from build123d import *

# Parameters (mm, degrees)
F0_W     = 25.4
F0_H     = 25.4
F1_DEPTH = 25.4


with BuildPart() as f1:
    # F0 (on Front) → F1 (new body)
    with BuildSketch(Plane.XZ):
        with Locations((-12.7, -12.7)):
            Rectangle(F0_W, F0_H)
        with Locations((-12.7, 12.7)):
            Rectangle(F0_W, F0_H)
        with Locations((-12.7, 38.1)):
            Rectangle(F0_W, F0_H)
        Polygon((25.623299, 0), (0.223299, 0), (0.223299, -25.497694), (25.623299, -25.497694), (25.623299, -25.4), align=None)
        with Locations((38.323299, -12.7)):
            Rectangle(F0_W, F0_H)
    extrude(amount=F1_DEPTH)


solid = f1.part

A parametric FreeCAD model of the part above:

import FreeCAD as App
import Part
import Sketcher
Q = App.Units.Quantity

doc = App.newDocument("Part")
body = doc.addObject("PartDesign::Body", "Body")
body.AllowCompound = True

# Sketch on XZ plane
sketch1 = body.newObject("Sketcher::SketchObject", "Sketch")
sketch1.AttachmentSupport = (doc.getObject("XZ_Plane"), [""])
sketch1.MapMode = "FlatFace"
sketch1.addGeometry([
    Part.LineSegment(App.Vector(-25.4, -25.4, 0), App.Vector(0, -25.4, 0)),  # 0
    Part.LineSegment(App.Vector(0, -25.4, 0), App.Vector(0, 50.8, 0)),  # 1
    Part.LineSegment(App.Vector(0, 50.8, 0), App.Vector(-25.4, 50.8, 0)),  # 2
    Part.LineSegment(App.Vector(-25.4, 50.8, 0), App.Vector(-25.4, -25.4, 0)),  # 3
    Part.LineSegment(App.Vector(0.22, 0, 0), App.Vector(0.22, -25.5, 0)),  # 4
    Part.LineSegment(App.Vector(0.22, -25.5, 0), App.Vector(25.62, -25.5, 0)),  # 5
    Part.LineSegment(App.Vector(25.62, -25.5, 0), App.Vector(25.62, -25.4, 0)),  # 6
    Part.LineSegment(App.Vector(25.62, -25.4, 0), App.Vector(51.02, -25.4, 0)),  # 7
    Part.LineSegment(App.Vector(51.02, -25.4, 0), App.Vector(51.02, 0, 0)),  # 8
    Part.LineSegment(App.Vector(51.02, 0, 0), App.Vector(0.22, 0, 0)),  # 9
], False)
sketch1.addConstraint([
    Sketcher.Constraint("Coincident", 0, 2, 1, 1),
    Sketcher.Constraint("Coincident", 1, 2, 2, 1),
    Sketcher.Constraint("Coincident", 2, 2, 3, 1),
    Sketcher.Constraint("Coincident", 3, 2, 0, 1),
    Sketcher.Constraint("Coincident", 4, 2, 5, 1),
    Sketcher.Constraint("Coincident", 5, 2, 6, 1),
    Sketcher.Constraint("Coincident", 6, 2, 7, 1),
    Sketcher.Constraint("Coincident", 7, 2, 8, 1),
    Sketcher.Constraint("Coincident", 8, 2, 9, 1),
    Sketcher.Constraint("Coincident", 9, 2, 4, 1),
    Sketcher.Constraint("Horizontal", 0),
    Sketcher.Constraint("Vertical", 1),
    Sketcher.Constraint("Horizontal", 2),
    Sketcher.Constraint("Vertical", 3),
    Sketcher.Constraint("Vertical", 4),
    Sketcher.Constraint("Horizontal", 5),
    Sketcher.Constraint("Vertical", 6),
    Sketcher.Constraint("Horizontal", 7),
    Sketcher.Constraint("Vertical", 8),
    Sketcher.Constraint("Horizontal", 9),
    Sketcher.Constraint("PointOnObject", 0, 2, -2),
    Sketcher.Constraint("PointOnObject", 8, 2, -1),
    Sketcher.Constraint("Horizontal", 3, 2, 6, 2),
    Sketcher.Constraint("Equal", 2, 5),
    Sketcher.Constraint("Equal", 5, 7),
    Sketcher.Constraint("Equal", 7, 8),
    Sketcher.Constraint("DistanceX", 0, 1, 0, 2, Q("1 in")),
    Sketcher.Constraint("DistanceY", 1, 1, 1, 2, Q("3 in")),
    Sketcher.Constraint("DistanceX", -1, 1, 4, 2, 0.223299),
    Sketcher.Constraint("DistanceY", 4, 2, 4, 1, 25.497694),
])
pad1 = body.newObject("PartDesign::Pad", "Pad")
pad1.Profile = sketch1
pad1.Length = Q("1 in")

doc.recompute()
